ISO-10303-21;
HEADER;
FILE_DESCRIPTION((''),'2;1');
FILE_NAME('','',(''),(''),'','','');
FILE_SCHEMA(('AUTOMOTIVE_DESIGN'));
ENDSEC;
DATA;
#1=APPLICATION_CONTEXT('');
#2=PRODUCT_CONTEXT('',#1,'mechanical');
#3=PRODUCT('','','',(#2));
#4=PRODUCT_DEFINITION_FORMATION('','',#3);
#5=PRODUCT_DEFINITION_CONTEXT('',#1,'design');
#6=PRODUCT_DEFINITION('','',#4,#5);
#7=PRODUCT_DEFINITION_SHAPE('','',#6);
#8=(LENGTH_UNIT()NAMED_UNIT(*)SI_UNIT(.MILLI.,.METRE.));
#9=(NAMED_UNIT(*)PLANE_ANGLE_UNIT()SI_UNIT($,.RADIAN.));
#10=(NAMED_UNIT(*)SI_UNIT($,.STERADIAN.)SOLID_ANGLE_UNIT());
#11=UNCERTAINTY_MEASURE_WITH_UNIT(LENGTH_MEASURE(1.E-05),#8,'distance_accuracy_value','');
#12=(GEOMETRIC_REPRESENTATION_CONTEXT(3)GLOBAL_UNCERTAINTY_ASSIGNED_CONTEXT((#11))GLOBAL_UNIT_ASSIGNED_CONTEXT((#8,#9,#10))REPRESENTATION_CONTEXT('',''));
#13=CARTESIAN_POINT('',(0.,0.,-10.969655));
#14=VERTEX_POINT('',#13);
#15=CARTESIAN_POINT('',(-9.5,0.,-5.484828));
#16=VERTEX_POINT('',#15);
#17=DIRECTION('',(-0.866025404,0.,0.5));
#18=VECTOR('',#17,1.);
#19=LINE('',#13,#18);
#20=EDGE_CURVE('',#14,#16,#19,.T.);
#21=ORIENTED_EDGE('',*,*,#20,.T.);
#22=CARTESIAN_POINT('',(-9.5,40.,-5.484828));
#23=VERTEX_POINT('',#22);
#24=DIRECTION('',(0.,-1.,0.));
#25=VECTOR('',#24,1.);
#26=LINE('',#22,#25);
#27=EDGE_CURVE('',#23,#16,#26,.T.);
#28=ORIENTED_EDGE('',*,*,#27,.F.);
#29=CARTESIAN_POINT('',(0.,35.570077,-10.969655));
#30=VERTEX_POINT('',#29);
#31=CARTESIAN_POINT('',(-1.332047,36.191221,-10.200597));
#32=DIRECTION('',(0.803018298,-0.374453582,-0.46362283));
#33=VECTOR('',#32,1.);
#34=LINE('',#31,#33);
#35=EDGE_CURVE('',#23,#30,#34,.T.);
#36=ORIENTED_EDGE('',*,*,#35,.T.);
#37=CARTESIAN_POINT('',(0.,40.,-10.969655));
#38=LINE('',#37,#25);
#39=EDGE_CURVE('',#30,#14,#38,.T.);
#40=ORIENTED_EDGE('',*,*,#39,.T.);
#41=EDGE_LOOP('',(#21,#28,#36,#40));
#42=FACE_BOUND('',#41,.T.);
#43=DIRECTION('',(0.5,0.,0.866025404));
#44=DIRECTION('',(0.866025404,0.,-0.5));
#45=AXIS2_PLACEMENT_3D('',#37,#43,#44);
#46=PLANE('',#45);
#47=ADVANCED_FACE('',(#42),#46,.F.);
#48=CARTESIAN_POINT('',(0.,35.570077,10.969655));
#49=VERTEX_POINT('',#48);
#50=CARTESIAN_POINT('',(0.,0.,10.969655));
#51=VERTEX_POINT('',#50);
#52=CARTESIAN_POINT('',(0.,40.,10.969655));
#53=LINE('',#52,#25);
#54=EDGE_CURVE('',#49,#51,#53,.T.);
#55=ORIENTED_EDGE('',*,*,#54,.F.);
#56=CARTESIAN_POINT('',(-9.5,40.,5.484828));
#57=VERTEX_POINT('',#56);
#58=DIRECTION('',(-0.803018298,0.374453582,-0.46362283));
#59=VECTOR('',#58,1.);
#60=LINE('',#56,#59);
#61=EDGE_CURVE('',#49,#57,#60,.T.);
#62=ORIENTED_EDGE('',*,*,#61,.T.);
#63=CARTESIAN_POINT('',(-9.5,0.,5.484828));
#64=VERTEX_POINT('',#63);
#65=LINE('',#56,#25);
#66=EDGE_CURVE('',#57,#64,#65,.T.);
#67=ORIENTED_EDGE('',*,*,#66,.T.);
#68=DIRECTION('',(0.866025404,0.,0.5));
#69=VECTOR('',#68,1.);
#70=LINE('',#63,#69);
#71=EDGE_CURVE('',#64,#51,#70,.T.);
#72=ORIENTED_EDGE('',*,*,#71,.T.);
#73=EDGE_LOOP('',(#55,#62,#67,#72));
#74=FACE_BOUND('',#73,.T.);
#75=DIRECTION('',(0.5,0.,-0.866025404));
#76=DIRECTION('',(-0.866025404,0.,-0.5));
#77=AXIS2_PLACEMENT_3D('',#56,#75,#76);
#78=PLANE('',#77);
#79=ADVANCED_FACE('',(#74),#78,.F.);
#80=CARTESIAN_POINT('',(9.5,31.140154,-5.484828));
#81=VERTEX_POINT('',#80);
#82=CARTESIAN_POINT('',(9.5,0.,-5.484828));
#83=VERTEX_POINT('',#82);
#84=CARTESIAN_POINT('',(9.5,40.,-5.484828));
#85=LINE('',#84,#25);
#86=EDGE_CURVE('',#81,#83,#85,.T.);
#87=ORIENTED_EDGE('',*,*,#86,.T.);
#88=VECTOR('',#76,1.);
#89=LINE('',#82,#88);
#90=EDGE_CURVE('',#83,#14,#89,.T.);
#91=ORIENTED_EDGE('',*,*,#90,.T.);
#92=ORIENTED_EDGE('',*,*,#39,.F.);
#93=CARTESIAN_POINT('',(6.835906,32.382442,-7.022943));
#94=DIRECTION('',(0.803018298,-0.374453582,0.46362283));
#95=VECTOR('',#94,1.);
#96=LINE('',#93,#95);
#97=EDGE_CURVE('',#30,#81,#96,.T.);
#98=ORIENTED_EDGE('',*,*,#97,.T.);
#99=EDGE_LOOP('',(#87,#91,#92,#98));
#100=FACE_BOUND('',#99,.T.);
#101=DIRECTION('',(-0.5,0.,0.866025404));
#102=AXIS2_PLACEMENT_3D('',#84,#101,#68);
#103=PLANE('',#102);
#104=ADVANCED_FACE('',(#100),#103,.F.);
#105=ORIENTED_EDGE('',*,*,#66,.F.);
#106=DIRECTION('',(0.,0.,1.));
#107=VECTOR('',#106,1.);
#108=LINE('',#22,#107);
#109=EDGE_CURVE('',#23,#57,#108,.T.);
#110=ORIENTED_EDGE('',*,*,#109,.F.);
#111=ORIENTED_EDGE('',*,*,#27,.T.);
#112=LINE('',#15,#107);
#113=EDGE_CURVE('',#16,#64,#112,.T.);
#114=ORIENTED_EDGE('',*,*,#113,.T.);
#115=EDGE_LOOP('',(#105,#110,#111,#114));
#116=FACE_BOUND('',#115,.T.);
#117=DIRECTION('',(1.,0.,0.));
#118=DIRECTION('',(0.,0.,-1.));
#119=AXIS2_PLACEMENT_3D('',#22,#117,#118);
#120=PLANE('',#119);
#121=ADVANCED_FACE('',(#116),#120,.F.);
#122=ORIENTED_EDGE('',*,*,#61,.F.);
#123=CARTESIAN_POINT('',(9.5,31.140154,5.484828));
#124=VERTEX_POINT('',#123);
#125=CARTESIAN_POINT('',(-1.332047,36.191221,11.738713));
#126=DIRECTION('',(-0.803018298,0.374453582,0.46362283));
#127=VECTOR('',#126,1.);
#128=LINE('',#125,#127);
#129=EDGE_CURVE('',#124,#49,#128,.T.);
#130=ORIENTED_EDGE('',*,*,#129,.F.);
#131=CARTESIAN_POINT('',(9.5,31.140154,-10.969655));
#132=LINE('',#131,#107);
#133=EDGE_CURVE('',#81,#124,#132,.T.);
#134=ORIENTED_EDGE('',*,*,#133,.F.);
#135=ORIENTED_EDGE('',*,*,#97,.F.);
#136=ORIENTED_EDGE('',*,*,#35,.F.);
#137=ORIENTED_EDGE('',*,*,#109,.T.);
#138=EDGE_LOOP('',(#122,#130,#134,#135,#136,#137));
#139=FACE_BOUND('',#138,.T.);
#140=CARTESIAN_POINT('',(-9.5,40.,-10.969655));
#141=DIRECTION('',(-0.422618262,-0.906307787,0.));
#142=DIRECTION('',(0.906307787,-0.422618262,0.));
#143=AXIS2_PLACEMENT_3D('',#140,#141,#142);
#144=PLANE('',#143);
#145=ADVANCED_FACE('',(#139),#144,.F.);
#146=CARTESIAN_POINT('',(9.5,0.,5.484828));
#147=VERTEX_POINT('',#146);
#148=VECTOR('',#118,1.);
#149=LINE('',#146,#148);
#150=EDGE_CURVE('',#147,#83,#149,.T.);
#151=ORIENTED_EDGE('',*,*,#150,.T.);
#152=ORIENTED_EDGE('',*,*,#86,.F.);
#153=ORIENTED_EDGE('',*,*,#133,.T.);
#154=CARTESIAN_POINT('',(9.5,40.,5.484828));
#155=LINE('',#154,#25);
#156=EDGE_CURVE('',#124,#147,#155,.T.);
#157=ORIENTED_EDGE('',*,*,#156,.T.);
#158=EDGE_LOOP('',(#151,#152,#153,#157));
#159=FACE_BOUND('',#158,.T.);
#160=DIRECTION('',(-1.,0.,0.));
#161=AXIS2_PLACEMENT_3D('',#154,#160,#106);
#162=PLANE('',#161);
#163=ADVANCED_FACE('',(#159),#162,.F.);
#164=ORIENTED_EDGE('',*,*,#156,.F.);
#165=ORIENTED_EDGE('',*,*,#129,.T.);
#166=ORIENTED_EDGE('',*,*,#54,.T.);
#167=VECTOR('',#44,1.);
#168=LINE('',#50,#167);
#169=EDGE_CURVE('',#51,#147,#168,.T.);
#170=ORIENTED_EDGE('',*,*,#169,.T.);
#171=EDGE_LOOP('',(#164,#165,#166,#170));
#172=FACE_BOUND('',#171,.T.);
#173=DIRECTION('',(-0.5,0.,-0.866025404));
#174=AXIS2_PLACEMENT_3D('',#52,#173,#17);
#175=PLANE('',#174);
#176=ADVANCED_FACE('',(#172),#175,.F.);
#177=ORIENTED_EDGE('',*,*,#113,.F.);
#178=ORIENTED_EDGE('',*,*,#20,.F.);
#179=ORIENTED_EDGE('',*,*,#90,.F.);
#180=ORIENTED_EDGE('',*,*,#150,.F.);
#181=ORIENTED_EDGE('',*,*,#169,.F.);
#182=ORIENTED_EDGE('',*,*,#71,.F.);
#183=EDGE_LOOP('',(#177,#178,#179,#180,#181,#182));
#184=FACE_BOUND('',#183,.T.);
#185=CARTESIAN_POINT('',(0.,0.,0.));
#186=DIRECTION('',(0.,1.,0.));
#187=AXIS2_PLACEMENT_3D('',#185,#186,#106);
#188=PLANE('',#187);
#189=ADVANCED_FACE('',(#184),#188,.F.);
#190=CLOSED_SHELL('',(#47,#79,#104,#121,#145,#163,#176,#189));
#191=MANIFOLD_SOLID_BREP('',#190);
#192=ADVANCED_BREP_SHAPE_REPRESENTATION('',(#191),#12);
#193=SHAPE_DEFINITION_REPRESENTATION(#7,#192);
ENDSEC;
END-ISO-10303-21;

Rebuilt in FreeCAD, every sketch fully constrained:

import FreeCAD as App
import Part
import Sketcher
from FreeCAD import Vector
Q = App.Units.Quantity

doc = App.newDocument("Part")
body = doc.addObject("PartDesign::Body", "Body")

sketch1 = body.newObject("Sketcher::SketchObject", "Sketch")
sketch1.AttachmentSupport = (doc.getObject("XZ_Plane"), [""])
sketch1.MapMode = "FlatFace"
sketch1.addGeometry(Part.LineSegment(Vector(0, 11, 0), Vector(10, 5, 0)), False)
sketch1.addGeometry(Part.LineSegment(Vector(10, 5, 0), Vector(10, -5, 0)), False)
sketch1.addGeometry(Part.LineSegment(Vector(10, -5, 0), Vector(0, -11, 0)), False)
sketch1.addGeometry(Part.LineSegment(Vector(0, -11, 0), Vector(-10, -5, 0)), False)
sketch1.addGeometry(Part.LineSegment(Vector(-10, -5, 0), Vector(-10, 5, 0)), False)
sketch1.addGeometry(Part.LineSegment(Vector(-10, 5, 0), Vector(0, 11, 0)), False)
sketch1.addConstraint(Sketcher.Constraint("Coincident", 0, 2, 1, 1))
sketch1.addConstraint(Sketcher.Constraint("Coincident", 1, 2, 2, 1))
sketch1.addConstraint(Sketcher.Constraint("Coincident", 2, 2, 3, 1))
sketch1.addConstraint(Sketcher.Constraint("Coincident", 3, 2, 4, 1))
sketch1.addConstraint(Sketcher.Constraint("Coincident", 4, 2, 5, 1))
sketch1.addConstraint(Sketcher.Constraint("Coincident", 5, 2, 0, 1))
sketch1.addConstraint(Sketcher.Constraint("Vertical", 1))
sketch1.addConstraint(Sketcher.Constraint("Vertical", 4))
sketch1.addConstraint(Sketcher.Constraint("Symmetric", 0, 2, 3, 2, -1, 1))
sketch1.addConstraint(Sketcher.Constraint("Symmetric", 2, 2, 5, 2, -1, 1))
sketch1.addConstraint(Sketcher.Constraint("PointOnObject", 2, 2, -2))
sketch1.addConstraint(Sketcher.Constraint("Parallel", 2, 5))
sketch1.addConstraint(Sketcher.Constraint("Horizontal", 1, 2, 3, 2))
sketch1.addConstraint(Sketcher.Constraint("Angle", 0, Q("-30 deg")))
sketch1.addConstraint(Sketcher.Constraint("DistanceX", 3, 2, 1, 2, Q("19 mm")))
sketch1.addConstraint(Sketcher.Constraint("DistanceY", 1, 2, 1, 1, Q("10.969655 mm")))
pad1 = body.newObject("PartDesign::Pad", "Pad")
pad1.Profile = sketch1
pad1.Length = 40
pad1.Reversed = True

sketch2 = body.newObject("Sketcher::SketchObject", "Sketch001")
sketch2.AttachmentSupport = (doc.getObject("XY_Plane"), [""])
sketch2.MapMode = "FlatFace"
sketch2.addGeometry(Part.LineSegment(Vector(-10, 40, 0), Vector(10, 31, 0)), False)
sketch2.addGeometry(Part.LineSegment(Vector(10, 31, 0), Vector(10, 40, 0)), False)
sketch2.addGeometry(Part.LineSegment(Vector(10, 40, 0), Vector(-10, 40, 0)), False)
sketch2.addConstraint(Sketcher.Constraint("Coincident", 0, 2, 1, 1))
sketch2.addConstraint(Sketcher.Constraint("Coincident", 1, 2, 2, 1))
sketch2.addConstraint(Sketcher.Constraint("Coincident", 2, 2, 0, 1))
sketch2.addConstraint(Sketcher.Constraint("Vertical", 1))
sketch2.addConstraint(Sketcher.Constraint("Horizontal", 2))
sketch2.addConstraint(Sketcher.Constraint("DistanceX", 2, 2, 2, 1, Q("19 mm")))
sketch2.addConstraint(Sketcher.Constraint("Angle", 0, Q("-25 deg")))
sketch2.addConstraint(Sketcher.Constraint("DistanceY", -1, 1, 1, 2, Q("40 mm")))
sketch2.addConstraint(Sketcher.Constraint("DistanceX", -1, 1, 0, 2, Q("9.5 mm")))
pocket1 = body.newObject("PartDesign::Pocket", "Pocket")
pocket1.Profile = sketch2
pocket1.Type = "ThroughAll"
pocket1.Midplane = True

doc.recompute()
